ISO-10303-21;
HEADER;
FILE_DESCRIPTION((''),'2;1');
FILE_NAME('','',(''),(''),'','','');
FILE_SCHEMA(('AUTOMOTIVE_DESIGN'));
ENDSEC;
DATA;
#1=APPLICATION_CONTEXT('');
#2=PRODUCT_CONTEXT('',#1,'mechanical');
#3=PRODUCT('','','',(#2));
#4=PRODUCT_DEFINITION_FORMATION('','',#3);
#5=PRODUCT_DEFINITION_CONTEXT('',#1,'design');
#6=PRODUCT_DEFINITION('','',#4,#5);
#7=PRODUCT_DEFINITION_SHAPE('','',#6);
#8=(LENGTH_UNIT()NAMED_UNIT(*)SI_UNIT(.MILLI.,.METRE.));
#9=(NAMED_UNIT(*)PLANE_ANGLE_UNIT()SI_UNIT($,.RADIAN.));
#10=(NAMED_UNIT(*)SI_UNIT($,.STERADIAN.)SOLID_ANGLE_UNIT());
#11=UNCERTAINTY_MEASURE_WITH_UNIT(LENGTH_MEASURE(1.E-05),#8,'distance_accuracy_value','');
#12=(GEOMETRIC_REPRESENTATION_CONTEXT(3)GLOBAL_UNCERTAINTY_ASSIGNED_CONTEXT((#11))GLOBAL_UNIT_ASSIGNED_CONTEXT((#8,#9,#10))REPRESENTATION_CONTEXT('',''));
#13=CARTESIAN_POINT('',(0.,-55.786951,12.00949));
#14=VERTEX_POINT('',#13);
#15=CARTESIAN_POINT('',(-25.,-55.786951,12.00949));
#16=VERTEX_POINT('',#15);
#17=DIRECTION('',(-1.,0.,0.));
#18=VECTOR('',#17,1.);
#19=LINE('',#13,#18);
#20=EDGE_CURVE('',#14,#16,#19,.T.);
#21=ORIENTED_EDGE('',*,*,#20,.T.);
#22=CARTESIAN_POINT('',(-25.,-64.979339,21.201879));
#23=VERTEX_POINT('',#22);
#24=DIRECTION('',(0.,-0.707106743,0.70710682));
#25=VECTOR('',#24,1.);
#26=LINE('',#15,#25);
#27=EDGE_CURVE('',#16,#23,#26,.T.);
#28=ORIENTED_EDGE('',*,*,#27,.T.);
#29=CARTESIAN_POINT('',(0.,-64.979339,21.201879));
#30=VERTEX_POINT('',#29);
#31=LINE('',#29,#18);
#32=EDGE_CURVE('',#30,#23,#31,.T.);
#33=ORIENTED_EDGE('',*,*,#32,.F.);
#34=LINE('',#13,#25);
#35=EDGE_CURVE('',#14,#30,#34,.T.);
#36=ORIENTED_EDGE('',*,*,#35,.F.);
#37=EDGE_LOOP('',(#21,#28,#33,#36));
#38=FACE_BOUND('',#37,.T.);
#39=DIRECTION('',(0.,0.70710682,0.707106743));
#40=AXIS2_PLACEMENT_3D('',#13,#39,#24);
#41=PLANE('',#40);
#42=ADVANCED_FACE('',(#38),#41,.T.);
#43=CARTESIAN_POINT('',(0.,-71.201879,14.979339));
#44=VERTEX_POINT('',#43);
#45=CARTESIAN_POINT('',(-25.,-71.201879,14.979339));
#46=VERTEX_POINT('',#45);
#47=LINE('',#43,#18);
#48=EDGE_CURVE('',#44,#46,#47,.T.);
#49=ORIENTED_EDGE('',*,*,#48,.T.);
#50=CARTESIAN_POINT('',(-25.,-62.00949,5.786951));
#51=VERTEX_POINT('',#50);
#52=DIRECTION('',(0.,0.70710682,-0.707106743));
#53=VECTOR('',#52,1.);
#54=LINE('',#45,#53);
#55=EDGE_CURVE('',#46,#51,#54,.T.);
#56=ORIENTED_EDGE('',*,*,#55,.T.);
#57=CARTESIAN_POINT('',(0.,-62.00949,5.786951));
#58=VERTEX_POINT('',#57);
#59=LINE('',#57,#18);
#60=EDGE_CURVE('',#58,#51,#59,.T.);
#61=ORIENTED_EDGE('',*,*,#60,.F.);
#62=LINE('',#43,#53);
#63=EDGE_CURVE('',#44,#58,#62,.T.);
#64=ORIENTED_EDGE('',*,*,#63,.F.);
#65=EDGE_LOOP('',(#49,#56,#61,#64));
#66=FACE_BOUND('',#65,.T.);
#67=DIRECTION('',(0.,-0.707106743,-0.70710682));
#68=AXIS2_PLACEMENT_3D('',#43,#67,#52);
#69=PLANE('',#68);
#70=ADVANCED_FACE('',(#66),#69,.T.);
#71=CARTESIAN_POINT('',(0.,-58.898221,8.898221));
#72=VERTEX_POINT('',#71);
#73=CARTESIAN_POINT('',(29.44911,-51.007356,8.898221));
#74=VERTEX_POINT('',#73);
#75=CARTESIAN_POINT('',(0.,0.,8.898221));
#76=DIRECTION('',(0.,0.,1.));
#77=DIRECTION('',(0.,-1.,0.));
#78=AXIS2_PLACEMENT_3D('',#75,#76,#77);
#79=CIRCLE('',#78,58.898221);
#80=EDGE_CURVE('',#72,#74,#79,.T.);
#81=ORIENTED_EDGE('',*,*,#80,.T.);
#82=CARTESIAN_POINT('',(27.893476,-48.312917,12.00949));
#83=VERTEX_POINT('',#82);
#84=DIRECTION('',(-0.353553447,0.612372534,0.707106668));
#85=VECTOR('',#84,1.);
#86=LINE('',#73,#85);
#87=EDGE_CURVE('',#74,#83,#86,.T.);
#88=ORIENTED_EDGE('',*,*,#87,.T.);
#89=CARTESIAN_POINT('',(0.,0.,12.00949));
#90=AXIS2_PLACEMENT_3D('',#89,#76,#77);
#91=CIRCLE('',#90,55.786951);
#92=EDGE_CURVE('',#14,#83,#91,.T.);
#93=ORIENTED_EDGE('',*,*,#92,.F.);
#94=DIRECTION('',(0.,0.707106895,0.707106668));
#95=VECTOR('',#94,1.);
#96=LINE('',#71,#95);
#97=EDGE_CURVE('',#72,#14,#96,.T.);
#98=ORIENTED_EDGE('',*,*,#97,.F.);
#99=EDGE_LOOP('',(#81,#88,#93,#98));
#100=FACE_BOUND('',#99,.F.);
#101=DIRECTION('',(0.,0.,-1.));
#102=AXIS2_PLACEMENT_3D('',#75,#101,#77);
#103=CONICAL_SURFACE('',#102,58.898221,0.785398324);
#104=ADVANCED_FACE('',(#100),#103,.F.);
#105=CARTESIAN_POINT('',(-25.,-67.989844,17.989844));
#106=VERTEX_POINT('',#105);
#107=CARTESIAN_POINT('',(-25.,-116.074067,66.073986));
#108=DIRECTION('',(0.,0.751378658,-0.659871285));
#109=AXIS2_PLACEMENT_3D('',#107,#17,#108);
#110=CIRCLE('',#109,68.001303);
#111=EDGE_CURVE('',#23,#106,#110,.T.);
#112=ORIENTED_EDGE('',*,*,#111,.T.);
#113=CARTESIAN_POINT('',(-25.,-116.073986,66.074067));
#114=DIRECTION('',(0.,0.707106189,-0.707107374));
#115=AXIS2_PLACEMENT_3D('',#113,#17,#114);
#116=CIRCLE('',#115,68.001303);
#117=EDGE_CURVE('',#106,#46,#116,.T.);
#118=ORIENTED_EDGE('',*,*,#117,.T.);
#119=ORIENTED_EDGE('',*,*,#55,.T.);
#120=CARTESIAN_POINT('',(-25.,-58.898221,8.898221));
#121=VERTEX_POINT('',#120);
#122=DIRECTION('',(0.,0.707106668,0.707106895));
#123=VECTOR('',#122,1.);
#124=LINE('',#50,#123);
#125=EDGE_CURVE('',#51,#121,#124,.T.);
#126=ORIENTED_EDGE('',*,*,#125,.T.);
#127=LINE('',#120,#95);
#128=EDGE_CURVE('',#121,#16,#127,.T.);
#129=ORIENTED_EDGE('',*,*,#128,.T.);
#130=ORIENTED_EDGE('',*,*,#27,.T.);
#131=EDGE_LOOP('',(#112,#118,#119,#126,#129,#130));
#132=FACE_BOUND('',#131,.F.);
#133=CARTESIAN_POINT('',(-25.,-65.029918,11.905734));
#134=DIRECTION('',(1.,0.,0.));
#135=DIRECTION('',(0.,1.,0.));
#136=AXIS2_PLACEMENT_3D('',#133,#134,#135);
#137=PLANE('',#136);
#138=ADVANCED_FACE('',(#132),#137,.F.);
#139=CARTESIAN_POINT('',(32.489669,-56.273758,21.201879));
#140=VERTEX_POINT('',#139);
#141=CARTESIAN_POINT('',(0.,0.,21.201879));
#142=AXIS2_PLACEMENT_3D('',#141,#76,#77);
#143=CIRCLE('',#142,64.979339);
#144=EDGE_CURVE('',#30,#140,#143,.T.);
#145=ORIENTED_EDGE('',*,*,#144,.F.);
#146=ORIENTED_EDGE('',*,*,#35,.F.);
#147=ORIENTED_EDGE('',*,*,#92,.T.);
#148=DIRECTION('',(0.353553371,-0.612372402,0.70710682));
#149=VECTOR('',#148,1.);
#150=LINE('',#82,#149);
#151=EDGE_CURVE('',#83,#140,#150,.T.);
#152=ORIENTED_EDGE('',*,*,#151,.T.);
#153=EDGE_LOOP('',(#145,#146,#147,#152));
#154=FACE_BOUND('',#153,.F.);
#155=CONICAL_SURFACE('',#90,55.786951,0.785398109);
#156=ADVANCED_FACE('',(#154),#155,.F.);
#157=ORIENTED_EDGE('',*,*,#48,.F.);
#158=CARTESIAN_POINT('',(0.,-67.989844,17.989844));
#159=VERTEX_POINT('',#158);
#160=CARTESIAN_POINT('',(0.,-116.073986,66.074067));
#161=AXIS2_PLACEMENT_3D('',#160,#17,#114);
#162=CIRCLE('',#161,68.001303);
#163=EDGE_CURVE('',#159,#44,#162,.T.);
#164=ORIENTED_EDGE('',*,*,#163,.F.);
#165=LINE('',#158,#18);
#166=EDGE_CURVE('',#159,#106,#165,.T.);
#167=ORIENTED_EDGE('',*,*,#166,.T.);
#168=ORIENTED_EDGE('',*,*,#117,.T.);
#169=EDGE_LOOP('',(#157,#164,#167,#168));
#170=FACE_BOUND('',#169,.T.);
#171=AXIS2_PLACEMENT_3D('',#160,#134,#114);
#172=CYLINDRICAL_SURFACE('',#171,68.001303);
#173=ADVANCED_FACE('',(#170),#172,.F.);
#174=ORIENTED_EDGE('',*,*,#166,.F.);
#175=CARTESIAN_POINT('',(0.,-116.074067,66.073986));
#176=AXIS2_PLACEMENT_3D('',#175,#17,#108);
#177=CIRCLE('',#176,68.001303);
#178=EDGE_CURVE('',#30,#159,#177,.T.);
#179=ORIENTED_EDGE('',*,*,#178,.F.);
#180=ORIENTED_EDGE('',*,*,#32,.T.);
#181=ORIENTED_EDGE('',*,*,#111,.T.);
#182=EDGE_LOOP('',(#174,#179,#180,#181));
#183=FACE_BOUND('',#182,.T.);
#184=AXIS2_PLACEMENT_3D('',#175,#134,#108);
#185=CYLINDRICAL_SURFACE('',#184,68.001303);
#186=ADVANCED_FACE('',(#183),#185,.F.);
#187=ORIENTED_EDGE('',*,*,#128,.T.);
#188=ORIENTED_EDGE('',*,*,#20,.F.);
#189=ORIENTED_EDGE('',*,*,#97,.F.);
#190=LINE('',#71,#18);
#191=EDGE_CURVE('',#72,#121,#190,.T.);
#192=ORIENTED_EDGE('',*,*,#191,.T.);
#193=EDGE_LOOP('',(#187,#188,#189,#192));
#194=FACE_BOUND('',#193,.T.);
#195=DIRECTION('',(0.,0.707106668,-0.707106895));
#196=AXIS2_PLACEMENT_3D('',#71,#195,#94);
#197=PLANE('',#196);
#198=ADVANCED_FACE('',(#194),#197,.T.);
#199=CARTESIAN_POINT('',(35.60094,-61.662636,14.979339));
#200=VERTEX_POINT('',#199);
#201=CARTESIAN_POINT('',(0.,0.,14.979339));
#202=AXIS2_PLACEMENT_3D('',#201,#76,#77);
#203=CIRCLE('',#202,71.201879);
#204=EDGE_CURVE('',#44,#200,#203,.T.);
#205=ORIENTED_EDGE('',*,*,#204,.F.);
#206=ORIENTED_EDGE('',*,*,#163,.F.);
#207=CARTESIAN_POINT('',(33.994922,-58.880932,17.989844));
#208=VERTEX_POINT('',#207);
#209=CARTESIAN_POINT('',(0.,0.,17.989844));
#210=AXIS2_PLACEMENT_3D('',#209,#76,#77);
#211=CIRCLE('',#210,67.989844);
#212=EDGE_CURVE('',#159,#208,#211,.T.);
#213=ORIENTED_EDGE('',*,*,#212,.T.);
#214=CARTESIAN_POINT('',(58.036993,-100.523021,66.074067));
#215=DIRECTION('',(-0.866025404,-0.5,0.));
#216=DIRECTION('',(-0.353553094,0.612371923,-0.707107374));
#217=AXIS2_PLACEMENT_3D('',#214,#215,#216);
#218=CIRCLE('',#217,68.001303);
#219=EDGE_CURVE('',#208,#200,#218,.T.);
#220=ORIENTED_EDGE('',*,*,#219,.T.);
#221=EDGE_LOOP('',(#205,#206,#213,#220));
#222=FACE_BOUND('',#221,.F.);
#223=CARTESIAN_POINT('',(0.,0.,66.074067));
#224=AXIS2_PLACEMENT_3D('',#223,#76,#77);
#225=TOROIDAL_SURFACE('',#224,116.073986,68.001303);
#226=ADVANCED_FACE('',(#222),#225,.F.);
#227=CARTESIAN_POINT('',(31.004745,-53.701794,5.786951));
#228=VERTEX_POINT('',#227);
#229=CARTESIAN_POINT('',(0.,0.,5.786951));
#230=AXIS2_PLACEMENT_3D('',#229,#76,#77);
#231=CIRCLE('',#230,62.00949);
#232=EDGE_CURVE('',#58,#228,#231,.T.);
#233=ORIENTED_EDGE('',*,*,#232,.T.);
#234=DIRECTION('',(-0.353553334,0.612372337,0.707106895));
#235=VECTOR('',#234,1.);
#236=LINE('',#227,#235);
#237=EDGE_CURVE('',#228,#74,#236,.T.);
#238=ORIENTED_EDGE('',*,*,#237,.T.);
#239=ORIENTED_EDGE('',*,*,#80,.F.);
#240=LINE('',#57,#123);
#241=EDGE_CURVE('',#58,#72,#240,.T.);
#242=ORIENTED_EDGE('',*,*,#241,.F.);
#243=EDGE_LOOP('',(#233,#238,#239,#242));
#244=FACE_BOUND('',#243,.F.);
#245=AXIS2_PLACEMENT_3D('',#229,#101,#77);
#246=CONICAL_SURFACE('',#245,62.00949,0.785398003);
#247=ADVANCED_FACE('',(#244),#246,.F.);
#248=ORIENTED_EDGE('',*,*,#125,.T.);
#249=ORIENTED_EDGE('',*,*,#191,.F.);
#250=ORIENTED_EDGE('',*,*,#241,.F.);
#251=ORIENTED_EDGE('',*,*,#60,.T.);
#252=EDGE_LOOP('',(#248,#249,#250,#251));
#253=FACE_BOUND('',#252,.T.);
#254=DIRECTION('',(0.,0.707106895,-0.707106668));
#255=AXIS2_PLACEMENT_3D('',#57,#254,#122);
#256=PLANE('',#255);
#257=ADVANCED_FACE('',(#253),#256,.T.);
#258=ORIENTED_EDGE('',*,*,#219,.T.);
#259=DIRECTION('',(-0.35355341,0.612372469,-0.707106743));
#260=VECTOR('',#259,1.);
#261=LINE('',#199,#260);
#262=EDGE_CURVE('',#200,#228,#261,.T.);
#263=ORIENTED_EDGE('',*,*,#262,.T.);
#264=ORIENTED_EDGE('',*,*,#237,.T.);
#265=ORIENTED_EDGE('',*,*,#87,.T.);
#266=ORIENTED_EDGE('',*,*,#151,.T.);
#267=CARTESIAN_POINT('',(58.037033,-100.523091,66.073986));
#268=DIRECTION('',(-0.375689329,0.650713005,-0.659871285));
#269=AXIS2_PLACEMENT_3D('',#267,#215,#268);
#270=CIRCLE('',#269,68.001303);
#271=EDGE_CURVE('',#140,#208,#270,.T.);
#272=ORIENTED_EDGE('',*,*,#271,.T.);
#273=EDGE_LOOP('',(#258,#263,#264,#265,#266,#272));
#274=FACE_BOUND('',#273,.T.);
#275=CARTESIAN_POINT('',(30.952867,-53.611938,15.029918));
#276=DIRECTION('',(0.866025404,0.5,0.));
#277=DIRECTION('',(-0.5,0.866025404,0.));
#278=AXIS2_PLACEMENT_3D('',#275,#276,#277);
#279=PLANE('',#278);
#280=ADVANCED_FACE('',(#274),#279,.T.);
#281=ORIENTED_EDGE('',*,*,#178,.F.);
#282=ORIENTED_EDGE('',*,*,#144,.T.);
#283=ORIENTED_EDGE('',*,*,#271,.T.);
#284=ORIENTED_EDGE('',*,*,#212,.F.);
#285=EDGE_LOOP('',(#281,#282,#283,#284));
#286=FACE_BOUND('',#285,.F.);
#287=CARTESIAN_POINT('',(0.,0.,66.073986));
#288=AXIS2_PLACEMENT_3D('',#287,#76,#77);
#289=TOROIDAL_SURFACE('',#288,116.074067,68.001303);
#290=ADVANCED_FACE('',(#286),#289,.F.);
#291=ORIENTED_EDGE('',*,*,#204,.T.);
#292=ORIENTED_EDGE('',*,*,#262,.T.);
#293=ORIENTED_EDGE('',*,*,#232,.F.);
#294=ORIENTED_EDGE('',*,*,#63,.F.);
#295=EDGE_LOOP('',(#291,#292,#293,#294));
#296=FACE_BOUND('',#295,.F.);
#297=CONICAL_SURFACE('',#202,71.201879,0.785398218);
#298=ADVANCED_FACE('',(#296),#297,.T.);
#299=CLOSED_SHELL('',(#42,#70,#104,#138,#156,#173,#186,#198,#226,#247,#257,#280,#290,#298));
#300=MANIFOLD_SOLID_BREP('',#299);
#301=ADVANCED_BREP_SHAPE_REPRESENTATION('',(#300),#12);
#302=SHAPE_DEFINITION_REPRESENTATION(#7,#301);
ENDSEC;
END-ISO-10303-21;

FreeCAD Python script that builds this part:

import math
import FreeCAD as App
import Part
import Sketcher
Q = App.Units.Quantity

doc = App.newDocument("Part")
body = doc.addObject("PartDesign::Body", "Body")

# Sketch on YZ plane
sketch1 = body.newObject("Sketcher::SketchObject", "Sketch")
sketch1.AttachmentSupport = (doc.getObject("YZ_Plane"), [""])
sketch1.MapMode = "FlatFace"
sketch1.addGeometry([
    Part.LineSegment(App.Vector(-55.786951, 12.00949, 0), App.Vector(-64.979339, 21.201879, 0)),  # 0
    Part.ArcOfCircle(Part.Circle(App.Vector(-116.074067, 66.073986, 0), App.Vector(0, 0, 1), 68.001303), math.radians(-44.999952), math.radians(-41.290057)),  # 1
    Part.ArcOfCircle(Part.Circle(App.Vector(-116.073986, 66.074067, 0), App.Vector(0, 0, 1), 68.001303), math.radians(-48.709943), math.radians(-45.000048)),  # 2
    Part.LineSegment(App.Vector(-71.201879, 14.979339, 0), App.Vector(-62.00949, 5.786951, 0)),  # 3
    Part.LineSegment(App.Vector(-62.00949, 5.786951, 0), App.Vector(-58.898221, 8.898221, 0)),  # 4
    Part.LineSegment(App.Vector(-58.898221, 8.898221, 0), App.Vector(-55.786951, 12.00949, 0)),  # 5
], False)
sketch1.addConstraint([
    Sketcher.Constraint("Coincident", 0, 2, 1, 2),
    Sketcher.Constraint("Coincident", 1, 1, 2, 2),
    Sketcher.Constraint("Coincident", 2, 1, 3, 1),
    Sketcher.Constraint("Coincident", 3, 2, 4, 1),
    Sketcher.Constraint("Coincident", 4, 2, 5, 1),
    Sketcher.Constraint("Coincident", 5, 2, 0, 1),
    Sketcher.Constraint("Distance", 0, Q("13 mm")),
    Sketcher.Constraint("Distance", 3, Q("13 mm")),
    Sketcher.Constraint("Distance", 4, Q("4.4 mm")),
    Sketcher.Constraint("Distance", 5, Q("4.4 mm")),
    Sketcher.Constraint("Radius", 1, Q("68.001303 mm")),
    Sketcher.Constraint("Radius", 2, Q("68.001303 mm")),
    Sketcher.Constraint("DistanceX", 0, 2, -1, 1, Q("64.979339 mm")),
    Sketcher.Constraint("DistanceY", -1, 1, 0, 2, Q("21.201879 mm")),
    Sketcher.Constraint("DistanceX", 2, 1, -1, 1, Q("71.201879 mm")),
    Sketcher.Constraint("DistanceY", -1, 1, 2, 1, Q("14.979339 mm")),
    Sketcher.Constraint("DistanceX", 3, 2, -1, 1, Q("62.00949 mm")),
    Sketcher.Constraint("DistanceX", 4, 2, -1, 1, Q("58.898221 mm")),
    Sketcher.Constraint("DistanceX", 1, 3, -1, 1, Q("116.074067 mm")),
    Sketcher.Constraint("DistanceX", 1, 1, -1, 1, Q("67.989844 mm")),
])
revolution = body.newObject("PartDesign::Revolution", "Revolution")
revolution.Profile = sketch1
revolution.ReferenceAxis = (sketch1, ["V_Axis"])
revolution.Angle = 30

# Sketch on YZ plane
sketch2 = body.newObject("Sketcher::SketchObject", "Sketch001")
sketch2.AttachmentSupport = (doc.getObject("YZ_Plane"), [""])
sketch2.MapMode = "FlatFace"
sketch2.addGeometry([
    Part.ArcOfCircle(Part.Circle(App.Vector(-116.073986, 66.074067, 0), App.Vector(0, 0, 1), 68.001303), math.radians(-48.709943), math.radians(-45.000048)),  # 0
    Part.LineSegment(App.Vector(-71.201879, 14.979339, 0), App.Vector(-62.00949, 5.786951, 0)),  # 1
    Part.LineSegment(App.Vector(-62.00949, 5.786951, 0), App.Vector(-58.898221, 8.898221, 0)),  # 2
    Part.LineSegment(App.Vector(-58.898221, 8.898221, 0), App.Vector(-55.786951, 12.00949, 0)),  # 3
    Part.LineSegment(App.Vector(-55.786951, 12.00949, 0), App.Vector(-64.979339, 21.201879, 0)),  # 4
    Part.ArcOfCircle(Part.Circle(App.Vector(-116.074067, 66.073986, 0), App.Vector(0, 0, 1), 68.001303), math.radians(-44.999952), math.radians(-41.290057)),  # 5
], False)
sketch2.addConstraint([
    Sketcher.Constraint("Coincident", 0, 1, 1, 1),
    Sketcher.Constraint("Coincident", 1, 2, 2, 1),
    Sketcher.Constraint("Coincident", 2, 2, 3, 1),
    Sketcher.Constraint("Coincident", 3, 2, 4, 1),
    Sketcher.Constraint("Coincident", 4, 2, 5, 2),
    Sketcher.Constraint("Coincident", 5, 1, 0, 2),
    Sketcher.Constraint("Distance", 1, Q("13 mm")),
    Sketcher.Constraint("Distance", 4, Q("13 mm")),
    Sketcher.Constraint("Distance", 2, Q("4.4 mm")),
    Sketcher.Constraint("Distance", 3, Q("4.4 mm")),
    Sketcher.Constraint("Radius", 0, Q("68.001303 mm")),
    Sketcher.Constraint("Radius", 5, Q("68.001303 mm")),
    Sketcher.Constraint("DistanceX", 0, 1, -1, 1, Q("71.201879 mm")),
    Sketcher.Constraint("DistanceY", -1, 1, 0, 1, Q("14.979339 mm")),
    Sketcher.Constraint("DistanceX", 1, 2, -1, 1, Q("62.00949 mm")),
    Sketcher.Constraint("DistanceX", 2, 2, -1, 1, Q("58.898221 mm")),
    Sketcher.Constraint("DistanceX", 3, 2, -1, 1, Q("55.786951 mm")),
    Sketcher.Constraint("DistanceX", 4, 2, -1, 1, Q("64.979339 mm")),
    Sketcher.Constraint("DistanceX", 0, 3, -1, 1, Q("116.073986 mm")),
    Sketcher.Constraint("DistanceX", 5, 1, -1, 1, Q("67.989844 mm")),
])
pad1 = body.newObject("PartDesign::Pad", "Pad")
pad1.Profile = sketch2
pad1.Length = 25
pad1.Reversed = True

doc.recompute()
